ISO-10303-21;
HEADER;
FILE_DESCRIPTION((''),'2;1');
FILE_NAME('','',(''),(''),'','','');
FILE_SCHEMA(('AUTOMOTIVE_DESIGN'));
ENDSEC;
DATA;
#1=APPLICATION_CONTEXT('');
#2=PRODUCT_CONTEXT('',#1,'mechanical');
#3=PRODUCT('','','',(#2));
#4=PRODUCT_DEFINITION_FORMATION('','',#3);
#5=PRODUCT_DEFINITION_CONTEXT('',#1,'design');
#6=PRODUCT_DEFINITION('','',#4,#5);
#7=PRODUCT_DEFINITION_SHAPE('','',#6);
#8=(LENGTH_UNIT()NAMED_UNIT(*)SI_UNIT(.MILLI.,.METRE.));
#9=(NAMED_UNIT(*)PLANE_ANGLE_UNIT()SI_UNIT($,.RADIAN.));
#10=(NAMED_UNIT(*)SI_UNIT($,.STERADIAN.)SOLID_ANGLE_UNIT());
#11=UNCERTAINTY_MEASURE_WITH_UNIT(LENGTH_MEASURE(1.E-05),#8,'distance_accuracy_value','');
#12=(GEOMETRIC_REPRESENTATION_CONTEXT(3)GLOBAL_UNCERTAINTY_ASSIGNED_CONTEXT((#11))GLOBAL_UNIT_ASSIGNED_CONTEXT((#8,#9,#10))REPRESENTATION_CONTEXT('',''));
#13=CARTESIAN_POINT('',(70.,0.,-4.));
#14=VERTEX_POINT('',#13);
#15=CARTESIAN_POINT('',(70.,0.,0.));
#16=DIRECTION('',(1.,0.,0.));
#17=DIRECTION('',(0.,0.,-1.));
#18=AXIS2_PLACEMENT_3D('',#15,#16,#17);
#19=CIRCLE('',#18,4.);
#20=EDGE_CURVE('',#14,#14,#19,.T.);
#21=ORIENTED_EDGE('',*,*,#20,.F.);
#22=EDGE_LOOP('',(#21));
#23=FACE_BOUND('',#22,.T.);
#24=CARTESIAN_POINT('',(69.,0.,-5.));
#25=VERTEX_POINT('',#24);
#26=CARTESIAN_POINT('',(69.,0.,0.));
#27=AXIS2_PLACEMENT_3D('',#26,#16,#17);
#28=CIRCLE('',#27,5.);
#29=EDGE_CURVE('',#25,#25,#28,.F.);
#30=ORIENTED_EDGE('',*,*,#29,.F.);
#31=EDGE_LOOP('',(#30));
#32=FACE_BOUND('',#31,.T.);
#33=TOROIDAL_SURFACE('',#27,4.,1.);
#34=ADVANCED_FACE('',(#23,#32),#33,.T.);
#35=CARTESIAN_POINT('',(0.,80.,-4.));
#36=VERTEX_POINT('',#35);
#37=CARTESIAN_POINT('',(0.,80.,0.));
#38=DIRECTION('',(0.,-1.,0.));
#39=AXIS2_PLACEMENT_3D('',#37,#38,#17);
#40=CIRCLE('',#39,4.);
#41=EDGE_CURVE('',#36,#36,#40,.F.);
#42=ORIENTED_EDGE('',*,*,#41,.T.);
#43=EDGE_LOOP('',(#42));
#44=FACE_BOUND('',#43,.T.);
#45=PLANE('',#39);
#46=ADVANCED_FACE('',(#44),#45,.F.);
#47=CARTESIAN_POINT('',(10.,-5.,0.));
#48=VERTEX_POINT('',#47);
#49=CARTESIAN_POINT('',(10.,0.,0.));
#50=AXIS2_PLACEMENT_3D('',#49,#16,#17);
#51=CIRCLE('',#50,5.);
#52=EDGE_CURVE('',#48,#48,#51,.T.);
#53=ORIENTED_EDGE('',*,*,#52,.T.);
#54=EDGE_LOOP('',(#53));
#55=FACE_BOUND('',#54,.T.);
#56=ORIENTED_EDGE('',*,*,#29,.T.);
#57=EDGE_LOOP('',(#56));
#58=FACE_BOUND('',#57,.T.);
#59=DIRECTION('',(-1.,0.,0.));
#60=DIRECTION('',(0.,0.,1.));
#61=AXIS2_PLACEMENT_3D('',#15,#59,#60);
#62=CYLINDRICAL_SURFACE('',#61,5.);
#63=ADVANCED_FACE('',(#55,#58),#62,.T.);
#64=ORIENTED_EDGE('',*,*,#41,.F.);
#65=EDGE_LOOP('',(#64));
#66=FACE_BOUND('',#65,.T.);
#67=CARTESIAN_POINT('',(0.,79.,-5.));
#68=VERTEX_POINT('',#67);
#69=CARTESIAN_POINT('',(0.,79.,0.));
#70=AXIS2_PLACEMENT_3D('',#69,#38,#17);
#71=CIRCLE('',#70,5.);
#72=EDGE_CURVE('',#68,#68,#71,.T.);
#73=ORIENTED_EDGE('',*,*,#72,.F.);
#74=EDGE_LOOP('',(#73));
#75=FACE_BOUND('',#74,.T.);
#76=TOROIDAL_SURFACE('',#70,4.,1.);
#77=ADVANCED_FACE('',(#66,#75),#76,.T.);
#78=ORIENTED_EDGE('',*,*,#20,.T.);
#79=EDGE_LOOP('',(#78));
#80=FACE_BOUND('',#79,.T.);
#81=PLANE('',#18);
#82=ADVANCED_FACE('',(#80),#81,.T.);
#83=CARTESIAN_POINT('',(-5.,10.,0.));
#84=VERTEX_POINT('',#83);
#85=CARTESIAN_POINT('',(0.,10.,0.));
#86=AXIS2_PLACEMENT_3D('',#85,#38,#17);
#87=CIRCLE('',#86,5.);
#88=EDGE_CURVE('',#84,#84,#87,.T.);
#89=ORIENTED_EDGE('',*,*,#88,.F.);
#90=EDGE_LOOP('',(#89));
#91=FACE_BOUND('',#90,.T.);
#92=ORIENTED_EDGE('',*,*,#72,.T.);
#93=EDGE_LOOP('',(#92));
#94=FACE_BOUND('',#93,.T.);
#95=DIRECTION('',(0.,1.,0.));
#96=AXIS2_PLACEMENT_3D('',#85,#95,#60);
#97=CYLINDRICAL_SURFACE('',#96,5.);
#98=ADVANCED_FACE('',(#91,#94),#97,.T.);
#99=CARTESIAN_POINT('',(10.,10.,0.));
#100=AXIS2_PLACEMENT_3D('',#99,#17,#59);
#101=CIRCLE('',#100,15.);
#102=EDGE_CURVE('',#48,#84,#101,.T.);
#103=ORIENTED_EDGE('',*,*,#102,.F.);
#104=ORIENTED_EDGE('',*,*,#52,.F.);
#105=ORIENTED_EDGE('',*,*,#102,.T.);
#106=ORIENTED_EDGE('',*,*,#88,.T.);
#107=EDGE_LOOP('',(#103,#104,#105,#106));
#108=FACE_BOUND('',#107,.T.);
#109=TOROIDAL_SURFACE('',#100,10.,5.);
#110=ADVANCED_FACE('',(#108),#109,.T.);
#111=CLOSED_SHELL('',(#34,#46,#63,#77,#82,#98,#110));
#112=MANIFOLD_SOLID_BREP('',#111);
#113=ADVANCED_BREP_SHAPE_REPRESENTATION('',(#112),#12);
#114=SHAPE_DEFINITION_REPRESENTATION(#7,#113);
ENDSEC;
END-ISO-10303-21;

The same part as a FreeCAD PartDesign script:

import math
import FreeCAD as App
import Part
import Sketcher
Q = App.Units.Quantity


def edges_at(feature, points):
    """Names of the edges that pass closest to the given points."""
    edges = feature.Shape.Edges
    near = lambda p: min(range(len(edges)), key=lambda i: edges[i].distToShape(Part.Vertex(*p))[0])
    return sorted({f"Edge{near(p) + 1}" for p in points})

doc = App.newDocument("Part")
params = doc.addObject("Spreadsheet::Sheet", "Params")
for row, (alias, value) in enumerate([
    ("sketch1_diameter", "10 mm"),
    ("sketch2_radius", "10 mm"),
    ("sketch2_width", "60 mm"),
    ("sketch2_height", "70 mm"),
    ("fillet_radius", "1 mm"),
], start=1):
    params.set(f"A{row}", alias)
    params.set(f"B{row}", "=" + value)
    params.setAlias(f"B{row}", alias)

body = doc.addObject("PartDesign::Body", "Body")

sketch1 = doc.addObject("Sketcher::SketchObject", "Sketch")
body.addObject(sketch1)
sketch1.AttachmentSupport = (doc.YZ_Plane, [""])
sketch1.MapMode = "FlatFace"
sketch1.AttachmentOffset = App.Placement(App.Vector(0, 0, 70), App.Rotation())
sketch1.addGeometry(Part.Circle(App.Vector(0, 0, 0), App.Vector(0, 0, 1), 5), False)
sketch1.addConstraint(Sketcher.Constraint("Coincident", 0, 3, -1, 1))
sketch1.addConstraint(Sketcher.Constraint("Diameter", 0, Q("10 mm")))
sketch1.setExpression("Constraints[1]", "Params.sketch1_diameter")

sketch2 = doc.addObject("Sketcher::SketchObject", "Sketch001")
body.addObject(sketch2)
sketch2.AttachmentSupport = (doc.XY_Plane, [""])
sketch2.MapMode = "FlatFace"
sketch2.addGeometry(Part.LineSegment(App.Vector(70, 0, 0), App.Vector(10, 0, 0)), False)
sketch2.addGeometry(Part.ArcOfCircle(Part.Circle(App.Vector(10, 10, 0), App.Vector(0, 0, 1), 10), math.radians(180), math.radians(270)), False)
sketch2.addGeometry(Part.LineSegment(App.Vector(0, 10, 0), App.Vector(0, 80, 0)), False)
sketch2.addConstraint(Sketcher.Constraint("Tangent", 0, 2, 1, 2))
sketch2.addConstraint(Sketcher.Constraint("Tangent", 1, 1, 2, 1))
sketch2.addConstraint(Sketcher.Constraint("Horizontal", 0))
sketch2.addConstraint(Sketcher.Constraint("Vertical", 2))
sketch2.addConstraint(Sketcher.Constraint("PointOnObject", 0, 1, -1))
sketch2.addConstraint(Sketcher.Constraint("PointOnObject", 1, 1, -2))
sketch2.addConstraint(Sketcher.Constraint("Radius", 1, Q("10 mm")))
sketch2.addConstraint(Sketcher.Constraint("DistanceX", 0, 2, 0, 1, Q("60 mm")))
sketch2.addConstraint(Sketcher.Constraint("DistanceY", 2, 1, 2, 2, Q("70 mm")))
sketch2.setExpression("Constraints[6]", "Params.sketch2_radius")
sketch2.setExpression("Constraints[7]", "Params.sketch2_width")
sketch2.setExpression("Constraints[8]", "Params.sketch2_height")
doc.recompute()

additivepipe = doc.addObject("PartDesign::AdditivePipe", "AdditivePipe")
body.addObject(additivepipe)
additivepipe.Profile = sketch1
additivepipe.Spine = (sketch2, ["Edge1", "Edge2", "Edge3"])
doc.recompute()

fillet = doc.addObject("PartDesign::Fillet", "Fillet")
body.addObject(fillet)
fillet.Base = (additivepipe, edges_at(additivepipe, [(0, 80, 5), (70, 0, 5)]))
fillet.setExpression("Radius", "Params.fillet_radius")

doc.recompute()
